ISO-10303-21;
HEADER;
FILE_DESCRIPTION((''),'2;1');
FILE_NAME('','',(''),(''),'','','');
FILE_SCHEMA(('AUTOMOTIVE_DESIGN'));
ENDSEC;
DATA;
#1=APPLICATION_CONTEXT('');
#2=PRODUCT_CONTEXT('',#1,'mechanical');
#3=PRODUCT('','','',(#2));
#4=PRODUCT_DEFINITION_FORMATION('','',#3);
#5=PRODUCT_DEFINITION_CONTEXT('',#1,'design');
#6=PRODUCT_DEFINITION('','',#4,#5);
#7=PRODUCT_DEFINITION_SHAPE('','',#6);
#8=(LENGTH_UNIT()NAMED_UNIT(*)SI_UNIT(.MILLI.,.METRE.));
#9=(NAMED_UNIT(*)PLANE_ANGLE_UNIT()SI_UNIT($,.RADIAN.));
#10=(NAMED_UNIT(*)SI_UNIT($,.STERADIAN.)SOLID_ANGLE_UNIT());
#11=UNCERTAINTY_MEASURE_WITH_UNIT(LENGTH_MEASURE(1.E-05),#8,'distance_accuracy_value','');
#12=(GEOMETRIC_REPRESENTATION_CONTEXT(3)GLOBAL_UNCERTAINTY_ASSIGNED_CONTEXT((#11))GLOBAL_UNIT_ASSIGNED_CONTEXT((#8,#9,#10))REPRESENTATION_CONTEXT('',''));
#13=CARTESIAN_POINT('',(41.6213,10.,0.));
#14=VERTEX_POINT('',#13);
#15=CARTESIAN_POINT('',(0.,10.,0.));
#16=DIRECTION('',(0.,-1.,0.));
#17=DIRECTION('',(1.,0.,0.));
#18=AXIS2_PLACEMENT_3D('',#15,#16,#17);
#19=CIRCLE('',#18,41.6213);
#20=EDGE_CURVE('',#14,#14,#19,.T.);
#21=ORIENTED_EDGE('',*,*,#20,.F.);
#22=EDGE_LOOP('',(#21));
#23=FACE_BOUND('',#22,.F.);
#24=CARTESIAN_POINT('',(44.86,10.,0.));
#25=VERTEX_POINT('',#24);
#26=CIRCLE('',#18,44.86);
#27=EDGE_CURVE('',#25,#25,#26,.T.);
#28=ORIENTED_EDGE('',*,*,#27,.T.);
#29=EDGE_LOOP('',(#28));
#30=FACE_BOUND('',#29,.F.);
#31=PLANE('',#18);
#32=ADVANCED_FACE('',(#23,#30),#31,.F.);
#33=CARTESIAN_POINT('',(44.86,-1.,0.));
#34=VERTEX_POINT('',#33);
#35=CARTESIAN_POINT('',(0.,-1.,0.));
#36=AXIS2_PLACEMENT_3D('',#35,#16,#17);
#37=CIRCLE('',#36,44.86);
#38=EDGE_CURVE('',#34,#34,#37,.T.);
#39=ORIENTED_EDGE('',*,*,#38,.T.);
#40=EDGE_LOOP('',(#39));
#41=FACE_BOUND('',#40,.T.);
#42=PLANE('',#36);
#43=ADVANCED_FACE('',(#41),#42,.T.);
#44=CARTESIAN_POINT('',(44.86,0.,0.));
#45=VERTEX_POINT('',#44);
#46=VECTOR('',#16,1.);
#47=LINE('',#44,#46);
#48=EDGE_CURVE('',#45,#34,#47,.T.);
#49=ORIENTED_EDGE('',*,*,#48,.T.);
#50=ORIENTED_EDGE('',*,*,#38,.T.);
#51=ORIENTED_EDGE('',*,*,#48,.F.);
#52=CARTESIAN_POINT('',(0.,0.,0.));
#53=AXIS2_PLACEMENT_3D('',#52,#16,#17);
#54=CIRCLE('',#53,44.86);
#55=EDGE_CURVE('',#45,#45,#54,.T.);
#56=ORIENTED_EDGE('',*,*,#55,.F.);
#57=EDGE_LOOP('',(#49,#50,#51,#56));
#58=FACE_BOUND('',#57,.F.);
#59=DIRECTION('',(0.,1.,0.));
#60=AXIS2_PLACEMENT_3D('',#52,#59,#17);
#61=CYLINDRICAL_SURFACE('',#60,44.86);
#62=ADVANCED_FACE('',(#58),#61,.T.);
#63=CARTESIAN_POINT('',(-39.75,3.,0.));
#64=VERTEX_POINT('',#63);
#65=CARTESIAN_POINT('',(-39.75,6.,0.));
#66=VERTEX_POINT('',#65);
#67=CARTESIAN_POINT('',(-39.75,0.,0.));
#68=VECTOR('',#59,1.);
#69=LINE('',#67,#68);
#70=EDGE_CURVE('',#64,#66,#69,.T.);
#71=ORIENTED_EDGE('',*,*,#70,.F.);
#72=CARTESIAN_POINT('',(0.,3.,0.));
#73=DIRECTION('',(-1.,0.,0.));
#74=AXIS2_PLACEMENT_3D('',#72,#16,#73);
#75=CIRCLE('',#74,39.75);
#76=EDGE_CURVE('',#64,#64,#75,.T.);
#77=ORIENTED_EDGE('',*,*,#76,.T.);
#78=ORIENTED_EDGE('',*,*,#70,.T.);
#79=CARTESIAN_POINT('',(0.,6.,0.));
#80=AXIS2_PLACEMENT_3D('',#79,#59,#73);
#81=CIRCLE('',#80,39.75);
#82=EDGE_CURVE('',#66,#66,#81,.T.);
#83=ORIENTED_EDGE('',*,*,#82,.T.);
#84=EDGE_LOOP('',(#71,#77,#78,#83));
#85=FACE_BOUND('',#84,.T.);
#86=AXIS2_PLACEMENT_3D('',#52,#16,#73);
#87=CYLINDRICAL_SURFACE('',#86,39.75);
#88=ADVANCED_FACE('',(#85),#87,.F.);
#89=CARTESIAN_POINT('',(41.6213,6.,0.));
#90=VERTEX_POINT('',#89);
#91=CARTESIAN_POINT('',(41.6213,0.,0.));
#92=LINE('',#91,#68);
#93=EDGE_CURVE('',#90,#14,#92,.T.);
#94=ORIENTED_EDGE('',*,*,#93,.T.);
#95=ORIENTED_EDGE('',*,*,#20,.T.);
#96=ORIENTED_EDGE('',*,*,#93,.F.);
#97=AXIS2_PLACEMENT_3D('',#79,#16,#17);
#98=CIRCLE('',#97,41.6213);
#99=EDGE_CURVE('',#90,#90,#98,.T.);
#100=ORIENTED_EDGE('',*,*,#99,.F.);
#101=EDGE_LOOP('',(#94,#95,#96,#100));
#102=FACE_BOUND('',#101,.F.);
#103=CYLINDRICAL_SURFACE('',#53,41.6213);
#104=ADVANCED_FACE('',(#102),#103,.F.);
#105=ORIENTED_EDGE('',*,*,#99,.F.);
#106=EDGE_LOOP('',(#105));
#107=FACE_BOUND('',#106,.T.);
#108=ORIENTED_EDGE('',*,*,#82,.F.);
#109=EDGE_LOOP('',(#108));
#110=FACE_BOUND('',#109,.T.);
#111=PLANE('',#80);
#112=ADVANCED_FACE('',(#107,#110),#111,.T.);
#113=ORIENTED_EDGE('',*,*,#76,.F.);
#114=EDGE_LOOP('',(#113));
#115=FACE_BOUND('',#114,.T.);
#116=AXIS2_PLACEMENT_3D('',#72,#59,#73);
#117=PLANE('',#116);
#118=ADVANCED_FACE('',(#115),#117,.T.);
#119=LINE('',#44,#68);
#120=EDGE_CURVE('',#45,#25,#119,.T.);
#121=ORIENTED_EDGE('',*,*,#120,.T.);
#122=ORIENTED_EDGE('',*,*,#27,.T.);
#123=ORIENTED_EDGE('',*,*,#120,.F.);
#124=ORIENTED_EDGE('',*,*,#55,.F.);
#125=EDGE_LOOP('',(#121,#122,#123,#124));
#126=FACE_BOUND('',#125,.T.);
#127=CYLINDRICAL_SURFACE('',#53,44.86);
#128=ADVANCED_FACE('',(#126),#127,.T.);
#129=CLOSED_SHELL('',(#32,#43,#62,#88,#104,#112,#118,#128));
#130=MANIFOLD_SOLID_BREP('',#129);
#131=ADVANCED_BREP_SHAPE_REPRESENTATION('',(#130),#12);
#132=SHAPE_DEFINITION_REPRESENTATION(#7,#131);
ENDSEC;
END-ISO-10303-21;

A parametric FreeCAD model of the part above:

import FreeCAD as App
import Part
import Sketcher
from FreeCAD import Vector
Q = App.Units.Quantity

doc = App.newDocument("Part")
body = doc.addObject("PartDesign::Body", "Body")

# Sketch on XZ plane
sketch1 = body.newObject("Sketcher::SketchObject", "Sketch")
sketch1.AttachmentSupport = (doc.getObject("XZ_Plane"), [""])
sketch1.MapMode = "FlatFace"
sketch1.addGeometry(Part.Circle(Vector(0, 0, 0), Vector(0, 0, 1), 39.7618), False)
sketch1.addConstraint(Sketcher.Constraint("Coincident", 0, 3, -1, 1))
sketch1.addConstraint(Sketcher.Constraint("Diameter", 0, Q("79.5236 mm")))
pad1 = body.newObject("PartDesign::Pad", "Pad")
pad1.Profile = sketch1
pad1.Length = 3
pad1.Reversed = True

# Sketch on XZ plane
sketch2 = body.newObject("Sketcher::SketchObject", "Sketch001")
sketch2.AttachmentSupport = (doc.getObject("XZ_Plane"), [""])
sketch2.MapMode = "FlatFace"
sketch2.addGeometry(Part.Circle(Vector(0, 0, 0), Vector(0, 0, 1), 41.745), False)
sketch2.addGeometry(Part.Circle(Vector(0, 0, 0), Vector(0, 0, 1), 39.75), False)
sketch2.addConstraint(Sketcher.Constraint("Coincident", 0, 3, -1, 1))
sketch2.addConstraint(Sketcher.Constraint("Coincident", 1, 3, -1, 1))
sketch2.addConstraint(Sketcher.Constraint("Diameter", 1, Q("79.5 mm")))
sketch2.addConstraint(Sketcher.Constraint("Diameter", 0, Q("83.49 mm")))
pad2 = body.newObject("PartDesign::Pad", "Pad001")
pad2.Profile = sketch2
pad2.Length = 6
pad2.Reversed = True

# Sketch on XZ plane
sketch3 = body.newObject("Sketcher::SketchObject", "Sketch002")
sketch3.AttachmentSupport = (doc.getObject("XZ_Plane"), [""])
sketch3.MapMode = "FlatFace"
sketch3.addGeometry(Part.Circle(Vector(0, 0, 0), Vector(0, 0, 1), 44.86), False)
sketch3.addGeometry(Part.Circle(Vector(0, 0, 0), Vector(0, 0, 1), 41.6213), False)
sketch3.addConstraint(Sketcher.Constraint("Coincident", 0, 3, -1, 1))
sketch3.addConstraint(Sketcher.Constraint("Coincident", 1, 3, -1, 1))
sketch3.addConstraint(Sketcher.Constraint("Diameter", 0, Q("89.72 mm")))
sketch3.addConstraint(Sketcher.Constraint("Diameter", 1, Q("83.2426 mm")))
pad3 = body.newObject("PartDesign::Pad", "Pad002")
pad3.Profile = sketch3
pad3.Length = 10
pad3.Reversed = True

# Sketch on XZ plane
sketch4 = body.newObject("Sketcher::SketchObject", "Sketch003")
sketch4.AttachmentSupport = (doc.getObject("XZ_Plane"), [""])
sketch4.MapMode = "FlatFace"
sketch4.addGeometry(Part.Circle(Vector(0, 0, 0), Vector(0, 0, 1), 44.86), False)
sketch4.addConstraint(Sketcher.Constraint("Coincident", 0, 3, -1, 1))
sketch4.addConstraint(Sketcher.Constraint("Diameter", 0, Q("89.72 mm")))
pad4 = body.newObject("PartDesign::Pad", "Pad003")
pad4.Profile = sketch4
pad4.Length = 1

doc.recompute()
